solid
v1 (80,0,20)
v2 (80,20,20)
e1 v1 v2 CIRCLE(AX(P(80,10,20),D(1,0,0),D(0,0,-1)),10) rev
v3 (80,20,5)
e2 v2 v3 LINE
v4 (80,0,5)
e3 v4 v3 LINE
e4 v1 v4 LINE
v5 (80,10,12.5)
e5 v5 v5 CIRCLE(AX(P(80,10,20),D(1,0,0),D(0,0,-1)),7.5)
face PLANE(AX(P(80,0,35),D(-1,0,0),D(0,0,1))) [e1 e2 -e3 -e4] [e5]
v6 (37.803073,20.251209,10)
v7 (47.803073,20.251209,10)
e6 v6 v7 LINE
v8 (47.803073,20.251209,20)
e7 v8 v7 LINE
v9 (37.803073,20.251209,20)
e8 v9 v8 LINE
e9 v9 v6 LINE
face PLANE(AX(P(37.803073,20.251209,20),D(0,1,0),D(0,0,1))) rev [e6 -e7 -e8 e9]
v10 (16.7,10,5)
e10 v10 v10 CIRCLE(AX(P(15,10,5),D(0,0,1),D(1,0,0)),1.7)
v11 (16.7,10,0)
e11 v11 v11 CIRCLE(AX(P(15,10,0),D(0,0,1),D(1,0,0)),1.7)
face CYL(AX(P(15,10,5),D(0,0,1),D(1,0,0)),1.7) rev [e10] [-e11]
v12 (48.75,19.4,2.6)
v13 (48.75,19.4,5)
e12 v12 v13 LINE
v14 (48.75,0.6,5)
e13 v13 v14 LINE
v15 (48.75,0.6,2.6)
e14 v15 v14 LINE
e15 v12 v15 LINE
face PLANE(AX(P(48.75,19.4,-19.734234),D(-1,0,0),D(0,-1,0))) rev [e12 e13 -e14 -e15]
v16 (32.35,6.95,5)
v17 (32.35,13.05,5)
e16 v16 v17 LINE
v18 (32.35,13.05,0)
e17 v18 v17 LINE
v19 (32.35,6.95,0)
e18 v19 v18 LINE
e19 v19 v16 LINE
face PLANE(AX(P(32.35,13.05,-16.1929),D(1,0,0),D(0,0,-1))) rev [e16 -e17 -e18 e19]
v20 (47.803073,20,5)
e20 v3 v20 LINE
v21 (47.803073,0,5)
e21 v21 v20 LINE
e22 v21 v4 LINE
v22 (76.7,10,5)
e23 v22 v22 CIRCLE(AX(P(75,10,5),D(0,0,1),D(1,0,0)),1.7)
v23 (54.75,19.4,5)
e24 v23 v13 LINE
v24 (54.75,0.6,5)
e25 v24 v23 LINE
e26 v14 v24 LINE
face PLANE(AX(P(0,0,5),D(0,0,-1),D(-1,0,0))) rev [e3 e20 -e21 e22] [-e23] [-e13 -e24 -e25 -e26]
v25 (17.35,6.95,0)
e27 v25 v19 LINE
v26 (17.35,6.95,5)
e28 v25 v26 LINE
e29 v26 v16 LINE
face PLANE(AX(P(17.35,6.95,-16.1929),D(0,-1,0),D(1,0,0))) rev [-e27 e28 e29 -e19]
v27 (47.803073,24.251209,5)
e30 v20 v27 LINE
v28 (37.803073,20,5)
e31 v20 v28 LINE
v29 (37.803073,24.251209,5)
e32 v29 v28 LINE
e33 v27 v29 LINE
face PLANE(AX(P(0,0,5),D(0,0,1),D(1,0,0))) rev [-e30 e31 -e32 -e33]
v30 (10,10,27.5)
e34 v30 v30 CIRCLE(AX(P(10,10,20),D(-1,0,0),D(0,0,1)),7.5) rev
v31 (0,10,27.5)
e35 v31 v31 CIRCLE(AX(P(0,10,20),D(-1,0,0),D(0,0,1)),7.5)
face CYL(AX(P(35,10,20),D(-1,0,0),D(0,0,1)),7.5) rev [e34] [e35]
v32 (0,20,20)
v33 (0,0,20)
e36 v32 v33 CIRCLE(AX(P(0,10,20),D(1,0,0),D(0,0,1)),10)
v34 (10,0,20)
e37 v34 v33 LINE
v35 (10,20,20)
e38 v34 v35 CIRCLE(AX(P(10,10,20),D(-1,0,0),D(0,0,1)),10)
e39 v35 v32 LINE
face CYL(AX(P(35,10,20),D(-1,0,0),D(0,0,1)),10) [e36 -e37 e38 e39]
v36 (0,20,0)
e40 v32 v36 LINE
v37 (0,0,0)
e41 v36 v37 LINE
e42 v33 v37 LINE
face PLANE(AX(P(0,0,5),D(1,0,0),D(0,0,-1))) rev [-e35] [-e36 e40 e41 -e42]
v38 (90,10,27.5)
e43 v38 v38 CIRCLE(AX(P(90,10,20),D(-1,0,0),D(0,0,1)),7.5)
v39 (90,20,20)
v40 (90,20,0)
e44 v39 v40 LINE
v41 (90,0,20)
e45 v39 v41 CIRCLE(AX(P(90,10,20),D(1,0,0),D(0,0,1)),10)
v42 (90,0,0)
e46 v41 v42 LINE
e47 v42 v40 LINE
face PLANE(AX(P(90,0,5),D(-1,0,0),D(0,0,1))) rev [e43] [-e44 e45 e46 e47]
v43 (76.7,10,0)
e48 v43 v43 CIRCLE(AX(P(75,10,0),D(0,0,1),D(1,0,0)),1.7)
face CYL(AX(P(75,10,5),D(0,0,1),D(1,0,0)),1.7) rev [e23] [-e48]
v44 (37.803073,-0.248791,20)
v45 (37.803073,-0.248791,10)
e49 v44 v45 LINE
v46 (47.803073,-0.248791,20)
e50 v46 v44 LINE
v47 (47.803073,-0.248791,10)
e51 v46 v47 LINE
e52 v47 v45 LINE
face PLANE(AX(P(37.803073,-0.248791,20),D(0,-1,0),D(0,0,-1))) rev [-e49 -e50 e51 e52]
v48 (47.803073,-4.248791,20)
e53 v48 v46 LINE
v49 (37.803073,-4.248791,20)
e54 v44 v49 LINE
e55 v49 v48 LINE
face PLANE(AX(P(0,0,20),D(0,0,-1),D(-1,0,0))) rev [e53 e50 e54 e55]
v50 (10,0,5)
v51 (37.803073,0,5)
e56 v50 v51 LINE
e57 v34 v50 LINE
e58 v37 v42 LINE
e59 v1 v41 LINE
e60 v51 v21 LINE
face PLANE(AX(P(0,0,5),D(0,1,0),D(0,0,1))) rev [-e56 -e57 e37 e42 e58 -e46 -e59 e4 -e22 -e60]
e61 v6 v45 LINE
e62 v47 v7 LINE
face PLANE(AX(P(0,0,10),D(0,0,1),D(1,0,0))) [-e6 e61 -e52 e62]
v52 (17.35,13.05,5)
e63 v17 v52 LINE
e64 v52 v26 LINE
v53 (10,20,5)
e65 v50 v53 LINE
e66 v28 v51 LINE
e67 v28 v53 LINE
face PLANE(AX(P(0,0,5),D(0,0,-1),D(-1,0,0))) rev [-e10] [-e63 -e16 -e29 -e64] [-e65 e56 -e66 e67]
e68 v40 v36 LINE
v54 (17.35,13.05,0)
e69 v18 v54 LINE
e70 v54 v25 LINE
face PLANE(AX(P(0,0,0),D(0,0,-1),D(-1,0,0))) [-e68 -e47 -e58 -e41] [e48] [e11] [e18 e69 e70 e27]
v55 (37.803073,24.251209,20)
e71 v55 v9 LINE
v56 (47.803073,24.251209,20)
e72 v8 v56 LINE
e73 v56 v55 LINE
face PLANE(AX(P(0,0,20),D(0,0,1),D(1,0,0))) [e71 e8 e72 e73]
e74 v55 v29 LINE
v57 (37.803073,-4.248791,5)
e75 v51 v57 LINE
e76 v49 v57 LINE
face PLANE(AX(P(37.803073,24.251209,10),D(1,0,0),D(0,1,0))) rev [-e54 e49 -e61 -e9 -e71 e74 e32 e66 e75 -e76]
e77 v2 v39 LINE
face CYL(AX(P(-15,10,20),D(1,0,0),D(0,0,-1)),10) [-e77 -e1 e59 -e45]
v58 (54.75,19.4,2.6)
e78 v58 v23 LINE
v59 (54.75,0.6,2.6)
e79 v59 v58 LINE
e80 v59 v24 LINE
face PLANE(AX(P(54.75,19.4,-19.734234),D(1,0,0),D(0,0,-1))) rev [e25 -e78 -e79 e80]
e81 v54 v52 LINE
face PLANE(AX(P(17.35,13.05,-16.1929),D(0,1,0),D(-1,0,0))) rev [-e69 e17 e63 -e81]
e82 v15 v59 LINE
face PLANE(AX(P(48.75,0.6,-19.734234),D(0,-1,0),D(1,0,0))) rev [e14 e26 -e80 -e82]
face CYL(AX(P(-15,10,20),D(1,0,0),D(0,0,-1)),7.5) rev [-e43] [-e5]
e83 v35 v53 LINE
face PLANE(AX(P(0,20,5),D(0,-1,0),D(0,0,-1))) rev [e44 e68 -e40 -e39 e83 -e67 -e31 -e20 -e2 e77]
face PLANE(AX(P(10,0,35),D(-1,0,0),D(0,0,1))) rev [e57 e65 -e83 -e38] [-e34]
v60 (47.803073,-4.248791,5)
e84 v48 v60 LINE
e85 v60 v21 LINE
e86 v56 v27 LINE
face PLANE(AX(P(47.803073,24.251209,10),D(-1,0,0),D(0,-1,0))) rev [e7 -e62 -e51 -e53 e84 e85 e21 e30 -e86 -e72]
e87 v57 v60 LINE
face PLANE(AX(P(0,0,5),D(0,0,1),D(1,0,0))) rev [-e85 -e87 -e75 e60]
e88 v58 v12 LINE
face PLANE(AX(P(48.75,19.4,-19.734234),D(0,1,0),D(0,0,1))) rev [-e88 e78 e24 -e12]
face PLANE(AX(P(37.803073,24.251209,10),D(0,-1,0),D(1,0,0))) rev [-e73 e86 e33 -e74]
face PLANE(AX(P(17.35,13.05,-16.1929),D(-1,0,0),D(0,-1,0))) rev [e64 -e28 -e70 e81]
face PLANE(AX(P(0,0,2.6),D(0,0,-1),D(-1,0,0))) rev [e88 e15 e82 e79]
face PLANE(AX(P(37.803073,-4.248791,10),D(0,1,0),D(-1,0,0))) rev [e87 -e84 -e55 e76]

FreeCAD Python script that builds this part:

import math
import FreeCAD as App
import Part
import Sketcher
from FreeCAD import Vector
Q = App.Units.Quantity

doc = App.newDocument("Part")
body = doc.addObject("PartDesign::Body", "Body")

# Sketch on XY plane
sketch1 = doc.addObject("Sketcher::SketchObject", "Sketch")
body.addObject(sketch1)
sketch1.AttachmentSupport = (doc.XY_Plane, [""])
sketch1.MapMode = "FlatFace"
sketch1.addGeometry([
    Part.LineSegment(Vector(0, 20, 0), Vector(0, 0, 0)),
    Part.LineSegment(Vector(0, 0, 0), Vector(90, 0, 0)),
    Part.LineSegment(Vector(90, 0, 0), Vector(90, 20, 0)),
    Part.LineSegment(Vector(90, 20, 0), Vector(0, 20, 0)),
], False)
sketch1.addConstraint([
    Sketcher.Constraint("Coincident", 0, 2, 1, 1),
    Sketcher.Constraint("Coincident", 1, 2, 2, 1),
    Sketcher.Constraint("Coincident", 2, 2, 3, 1),
    Sketcher.Constraint("Coincident", 3, 2, 0, 1),
    Sketcher.Constraint("Vertical", 0),
    Sketcher.Constraint("Horizontal", 1),
    Sketcher.Constraint("Vertical", 2),
    Sketcher.Constraint("Horizontal", 3),
    Sketcher.Constraint("Coincident", 0, 2, -1, 1),
    Sketcher.Constraint("DistanceX", 1, 1, 1, 2, Q("90 mm")),
    Sketcher.Constraint("DistanceY", 0, 2, 0, 1, Q("20 mm")),
])
pad1 = doc.addObject("PartDesign::Pad", "Pad")
body.addObject(pad1)
pad1.Profile = sketch1
pad1.Length = 5

# Sketch on XY plane
sketch2 = doc.addObject("Sketcher::SketchObject", "Sketch001")
body.addObject(sketch2)
sketch2.AttachmentSupport = (doc.XY_Plane, [""])
sketch2.MapMode = "FlatFace"
sketch2.AttachmentOffset = App.Placement(Vector(0, 0, 5), App.Rotation())
sketch2.addGeometry([
    Part.LineSegment(Vector(0, 20, 0), Vector(0, 0, 0)),
    Part.LineSegment(Vector(0, 0, 0), Vector(10, 0, 0)),
    Part.LineSegment(Vector(10, 0, 0), Vector(10, 20, 0)),
    Part.LineSegment(Vector(10, 20, 0), Vector(0, 20, 0)),
], False)
sketch2.addConstraint([
    Sketcher.Constraint("Coincident", 0, 2, 1, 1),
    Sketcher.Constraint("Coincident", 1, 2, 2, 1),
    Sketcher.Constraint("Coincident", 2, 2, 3, 1),
    Sketcher.Constraint("Coincident", 3, 2, 0, 1),
    Sketcher.Constraint("Vertical", 0),
    Sketcher.Constraint("Horizontal", 1),
    Sketcher.Constraint("Vertical", 2),
    Sketcher.Constraint("Horizontal", 3),
    Sketcher.Constraint("Coincident", 0, 2, -1, 1),
    Sketcher.Constraint("DistanceX", 1, 1, 1, 2, Q("10 mm")),
    Sketcher.Constraint("DistanceY", 0, 2, 0, 1, Q("20 mm")),
])
pad2 = doc.addObject("PartDesign::Pad", "Pad001")
body.addObject(pad2)
pad2.Profile = sketch2
pad2.Length = 30

# Sketch on YZ plane
sketch3 = doc.addObject("Sketcher::SketchObject", "Sketch002")
body.addObject(sketch3)
sketch3.AttachmentSupport = (doc.YZ_Plane, [""])
sketch3.MapMode = "FlatFace"
sketch3.addGeometry([
    Part.Circle(Vector(10, 20, 0), Vector(0, 0, 1), 8),  # 0
    Part.LineSegment(Vector(20, 35, 0), Vector(20, 20, 0)),  # 1
    Part.ArcOfCircle(Part.Circle(Vector(10, 20, 0), Vector(0, 0, 1), 10), math.radians(0), math.radians(180)),  # 2
    Part.LineSegment(Vector(0, 20, 0), Vector(0, 35, 0)),  # 3
    Part.LineSegment(Vector(0, 35, 0), Vector(20, 35, 0)),  # 4
], False)
sketch3.addConstraint([
    Sketcher.Constraint("Tangent", 1, 2, 2, 1),
    Sketcher.Constraint("Tangent", 2, 2, 3, 1),
    Sketcher.Constraint("Coincident", 3, 2, 4, 1),
    Sketcher.Constraint("Coincident", 4, 2, 1, 1),
    Sketcher.Constraint("Vertical", 1),
    Sketcher.Constraint("Vertical", 3),
    Sketcher.Constraint("Horizontal", 4),
    Sketcher.Constraint("Coincident", 2, 3, 0, 3),
    Sketcher.Constraint("PointOnObject", 2, 2, -2),
    Sketcher.Constraint("Diameter", 0, Q("15 mm")),
    Sketcher.Constraint("Radius", 2, Q("10 mm")),
    Sketcher.Constraint("DistanceY", 1, 2, 1, 1, Q("15 mm")),
    Sketcher.Constraint("DistanceY", -1, 1, 0, 3, Q("20 mm")),
])
pocket1 = doc.addObject("PartDesign::Pocket", "Pocket")
body.addObject(pocket1)
pocket1.Profile = sketch3
pocket1.Length = 10
pocket1.Reversed = True
doc.recompute()

datumplane = doc.addObject("PartDesign::Plane", "DatumPlane")
body.addObject(datumplane)
datumplane.AttachmentSupport = (doc.YZ_Plane, [""])
datumplane.MapMode = "FlatFace"
datumplane.AttachmentOffset = App.Placement(Vector(0, 0, 45), App.Rotation())
mirrored = doc.addObject("PartDesign::Mirrored", "Mirrored")
body.addObject(mirrored)
mirrored.Originals = [pad2, pocket1]
mirrored.MirrorPlane = (datumplane, [""])
body.Tip = mirrored

# Sketch on XY plane
sketch4 = doc.addObject("Sketcher::SketchObject", "Sketch003")
body.addObject(sketch4)
sketch4.AttachmentSupport = (doc.XY_Plane, [""])
sketch4.MapMode = "FlatFace"
sketch4.AttachmentOffset = App.Placement(Vector(0, 0, 5), App.Rotation())
sketch4.addGeometry([
    Part.LineSegment(Vector(49, 19, 0), Vector(49, 1, 0)),
    Part.LineSegment(Vector(49, 1, 0), Vector(55, 1, 0)),
    Part.LineSegment(Vector(55, 1, 0), Vector(55, 19, 0)),
    Part.LineSegment(Vector(55, 19, 0), Vector(49, 19, 0)),
], False)
sketch4.addConstraint([
    Sketcher.Constraint("Coincident", 0, 2, 1, 1),
    Sketcher.Constraint("Coincident", 1, 2, 2, 1),
    Sketcher.Constraint("Coincident", 2, 2, 3, 1),
    Sketcher.Constraint("Coincident", 3, 2, 0, 1),
    Sketcher.Constraint("Vertical", 0),
    Sketcher.Constraint("Horizontal", 1),
    Sketcher.Constraint("Vertical", 2),
    Sketcher.Constraint("Horizontal", 3),
    Sketcher.Constraint("DistanceX", 1, 1, 1, 2, Q("6 mm")),
    Sketcher.Constraint("DistanceY", 0, 2, 0, 1, Q("18.8 mm")),
    Sketcher.Constraint("DistanceY", -1, 1, 0, 2, Q("0.6 mm")),
    Sketcher.Constraint("DistanceX", -1, 1, 0, 2, Q("48.75 mm")),
])
pocket2 = doc.addObject("PartDesign::Pocket", "Pocket001")
body.addObject(pocket2)
pocket2.Profile = sketch4
pocket2.Length = 2.4

# Sketch on XY plane
sketch5 = doc.addObject("Sketcher::SketchObject", "Sketch004")
body.addObject(sketch5)
sketch5.AttachmentSupport = (doc.XY_Plane, [""])
sketch5.MapMode = "FlatFace"
sketch5.AttachmentOffset = App.Placement(Vector(0, 0, 5), App.Rotation())
sketch5.addGeometry([
    Part.LineSegment(Vector(17, 13, 0), Vector(17, 7, 0)),
    Part.LineSegment(Vector(17, 7, 0), Vector(32, 7, 0)),
    Part.LineSegment(Vector(32, 7, 0), Vector(32, 13, 0)),
    Part.LineSegment(Vector(32, 13, 0), Vector(17, 13, 0)),
], False)
sketch5.addConstraint([
    Sketcher.Constraint("Coincident", 0, 2, 1, 1),
    Sketcher.Constraint("Coincident", 1, 2, 2, 1),
    Sketcher.Constraint("Coincident", 2, 2, 3, 1),
    Sketcher.Constraint("Coincident", 3, 2, 0, 1),
    Sketcher.Constraint("Vertical", 0),
    Sketcher.Constraint("Horizontal", 1),
    Sketcher.Constraint("Vertical", 2),
    Sketcher.Constraint("Horizontal", 3),
    Sketcher.Constraint("DistanceX", 1, 1, 1, 2, Q("15 mm")),
    Sketcher.Constraint("DistanceY", 0, 2, 0, 1, Q("6.1 mm")),
    Sketcher.Constraint("DistanceX", -1, 1, 0, 2, Q("17.35 mm")),
    Sketcher.Constraint("DistanceY", -1, 1, 0, 2, Q("6.95 mm")),
])
pocket3 = doc.addObject("PartDesign::Pocket", "Pocket002")
body.addObject(pocket3)
pocket3.Profile = sketch5
pocket3.Length = 5

# Sketch on XY plane
sketch6 = doc.addObject("Sketcher::SketchObject", "Sketch005")
body.addObject(sketch6)
sketch6.AttachmentSupport = (doc.XY_Plane, [""])
sketch6.MapMode = "FlatFace"
sketch6.AttachmentOffset = App.Placement(Vector(0, 0, 5), App.Rotation())
sketch6.addGeometry([
    Part.Circle(Vector(15, 10, 0), Vector(0, 0, 1), 1),
    Part.Circle(Vector(75, 10, 0), Vector(0, 0, 1), 1),
], False)
sketch6.addConstraint([
    Sketcher.Constraint("Equal", 0, 1),
    Sketcher.Constraint("Horizontal", 0, 3, 1, 3),
    Sketcher.Constraint("Diameter", 0, Q("2 mm")),
    Sketcher.Constraint("DistanceX", -1, 1, 0, 3, Q("15 mm")),
    Sketcher.Constraint("DistanceY", -1, 1, 0, 3, Q("10 mm")),
    Sketcher.Constraint("DistanceX", -1, 1, 1, 3, Q("75 mm")),
])
pocket4 = doc.addObject("PartDesign::Pocket", "Pocket003")
body.addObject(pocket4)
pocket4.Profile = sketch6
pocket4.Length = 10

# Sketch on XY plane
sketch7 = doc.addObject("Sketcher::SketchObject", "Sketch006")
body.addObject(sketch7)
sketch7.AttachmentSupport = (doc.XY_Plane, [""])
sketch7.MapMode = "FlatFace"
sketch7.AttachmentOffset = App.Placement(Vector(0, 0, 5), App.Rotation())
sketch7.addGeometry([
    Part.Circle(Vector(15, 10, 0), Vector(0, 0, 1), 1.7),
    Part.Circle(Vector(75, 10, 0), Vector(0, 0, 1), 1.7),
], False)
sketch7.addConstraint([
    Sketcher.Constraint("Equal", 0, 1),
    Sketcher.Constraint("Horizontal", 0, 3, 1, 3),
    Sketcher.Constraint("Diameter", 0, Q("3.4 mm")),
    Sketcher.Constraint("DistanceX", -1, 1, 0, 3, Q("15 mm")),
    Sketcher.Constraint("DistanceY", -1, 1, 0, 3, Q("10 mm")),
    Sketcher.Constraint("DistanceX", -1, 1, 1, 3, Q("75 mm")),
])
doc.recompute()
hole = doc.addObject("PartDesign::Hole", "Hole")
body.addObject(hole)
hole.Profile = sketch7
hole.ThreadType = "None"
hole.Diameter = 3.4
hole.DepthType = "ThroughAll"

# Sketch on XY plane
sketch8 = doc.addObject("Sketcher::SketchObject", "Sketch007")
body.addObject(sketch8)
sketch8.AttachmentSupport = (doc.XY_Plane, [""])
sketch8.MapMode = "FlatFace"
sketch8.AttachmentOffset = App.Placement(Vector(0, 0, 5), App.Rotation())
sketch8.addGeometry([
    Part.LineSegment(Vector(38, 24, 0), Vector(38, -4, 0)),
    Part.LineSegment(Vector(38, -4, 0), Vector(48, -4, 0)),
    Part.LineSegment(Vector(48, -4, 0), Vector(48, 24, 0)),
    Part.LineSegment(Vector(48, 24, 0), Vector(38, 24, 0)),
], False)
sketch8.addConstraint([
    Sketcher.Constraint("Coincident", 0, 2, 1, 1),
    Sketcher.Constraint("Coincident", 1, 2, 2, 1),
    Sketcher.Constraint("Coincident", 2, 2, 3, 1),
    Sketcher.Constraint("Coincident", 3, 2, 0, 1),
    Sketcher.Constraint("Vertical", 0),
    Sketcher.Constraint("Horizontal", 1),
    Sketcher.Constraint("Vertical", 2),
    Sketcher.Constraint("Horizontal", 3),
    Sketcher.Constraint("DistanceX", 1, 1, 1, 2, Q("10 mm")),
    Sketcher.Constraint("DistanceY", 0, 2, 0, 1, Q("28.5 mm")),
    Sketcher.Constraint("DistanceY", 0, 2, -1, 1, Q("4.248791 mm")),
    Sketcher.Constraint("DistanceX", -1, 1, 0, 2, Q("37.803073 mm")),
])
pad3 = doc.addObject("PartDesign::Pad", "Pad002")
body.addObject(pad3)
pad3.Profile = sketch8
pad3.Length = 5

# Sketch on XY plane
sketch9 = doc.addObject("Sketcher::SketchObject", "Sketch008")
body.addObject(sketch9)
sketch9.AttachmentSupport = (doc.XY_Plane, [""])
sketch9.MapMode = "FlatFace"
sketch9.AttachmentOffset = App.Placement(Vector(0, 0, 10), App.Rotation())
sketch9.addGeometry([
    Part.LineSegment(Vector(37.8, 24.3, 0), Vector(37.8, 20.3, 0)),  # 0
    Part.LineSegment(Vector(37.8, 20.3, 0), Vector(47.8, 20.3, 0)),  # 1
    Part.LineSegment(Vector(47.8, 20.3, 0), Vector(47.8, 24.3, 0)),  # 2
    Part.LineSegment(Vector(47.8, 24.3, 0), Vector(37.8, 24.3, 0)),  # 3
    Part.LineSegment(Vector(37.8, -0.2, 0), Vector(37.8, -4.2, 0)),  # 4
    Part.LineSegment(Vector(37.8, -4.2, 0), Vector(47.8, -4.2, 0)),  # 5
    Part.LineSegment(Vector(47.8, -4.2, 0), Vector(47.8, -0.2, 0)),  # 6
    Part.LineSegment(Vector(47.8, -0.2, 0), Vector(37.8, -0.2, 0)),  # 7
], False)
sketch9.addConstraint([
    Sketcher.Constraint("Coincident", 0, 2, 1, 1),
    Sketcher.Constraint("Coincident", 1, 2, 2, 1),
    Sketcher.Constraint("Coincident", 2, 2, 3, 1),
    Sketcher.Constraint("Coincident", 3, 2, 0, 1),
    Sketcher.Constraint("Coincident", 4, 2, 5, 1),
    Sketcher.Constraint("Coincident", 5, 2, 6, 1),
    Sketcher.Constraint("Coincident", 6, 2, 7, 1),
    Sketcher.Constraint("Coincident", 7, 2, 4, 1),
    Sketcher.Constraint("Vertical", 0),
    Sketcher.Constraint("Horizontal", 1),
    Sketcher.Constraint("Vertical", 2),
    Sketcher.Constraint("Horizontal", 3),
    Sketcher.Constraint("Vertical", 4),
    Sketcher.Constraint("Horizontal", 5),
    Sketcher.Constraint("Vertical", 6),
    Sketcher.Constraint("Horizontal", 7),
    Sketcher.Constraint("Vertical", 3, 2, 4, 2),
    Sketcher.Constraint("Vertical", 2, 2, 5, 2),
    Sketcher.Constraint("Equal", 2, 4),
    Sketcher.Constraint("DistanceX", 1, 1, 1, 2, Q("10 mm")),
    Sketcher.Constraint("DistanceY", 0, 2, 0, 1, Q("4 mm")),
    Sketcher.Constraint("DistanceY", 4, 2, 0, 2, Q("24.5 mm")),
    Sketcher.Constraint("DistanceY", -1, 1, 0, 2, Q("20.251209 mm")),
    Sketcher.Constraint("DistanceX", -1, 1, 0, 2, Q("37.803073 mm")),
])
pad4 = doc.addObject("PartDesign::Pad", "Pad003")
body.addObject(pad4)
pad4.Profile = sketch9
pad4.Length = 10

doc.recompute()
